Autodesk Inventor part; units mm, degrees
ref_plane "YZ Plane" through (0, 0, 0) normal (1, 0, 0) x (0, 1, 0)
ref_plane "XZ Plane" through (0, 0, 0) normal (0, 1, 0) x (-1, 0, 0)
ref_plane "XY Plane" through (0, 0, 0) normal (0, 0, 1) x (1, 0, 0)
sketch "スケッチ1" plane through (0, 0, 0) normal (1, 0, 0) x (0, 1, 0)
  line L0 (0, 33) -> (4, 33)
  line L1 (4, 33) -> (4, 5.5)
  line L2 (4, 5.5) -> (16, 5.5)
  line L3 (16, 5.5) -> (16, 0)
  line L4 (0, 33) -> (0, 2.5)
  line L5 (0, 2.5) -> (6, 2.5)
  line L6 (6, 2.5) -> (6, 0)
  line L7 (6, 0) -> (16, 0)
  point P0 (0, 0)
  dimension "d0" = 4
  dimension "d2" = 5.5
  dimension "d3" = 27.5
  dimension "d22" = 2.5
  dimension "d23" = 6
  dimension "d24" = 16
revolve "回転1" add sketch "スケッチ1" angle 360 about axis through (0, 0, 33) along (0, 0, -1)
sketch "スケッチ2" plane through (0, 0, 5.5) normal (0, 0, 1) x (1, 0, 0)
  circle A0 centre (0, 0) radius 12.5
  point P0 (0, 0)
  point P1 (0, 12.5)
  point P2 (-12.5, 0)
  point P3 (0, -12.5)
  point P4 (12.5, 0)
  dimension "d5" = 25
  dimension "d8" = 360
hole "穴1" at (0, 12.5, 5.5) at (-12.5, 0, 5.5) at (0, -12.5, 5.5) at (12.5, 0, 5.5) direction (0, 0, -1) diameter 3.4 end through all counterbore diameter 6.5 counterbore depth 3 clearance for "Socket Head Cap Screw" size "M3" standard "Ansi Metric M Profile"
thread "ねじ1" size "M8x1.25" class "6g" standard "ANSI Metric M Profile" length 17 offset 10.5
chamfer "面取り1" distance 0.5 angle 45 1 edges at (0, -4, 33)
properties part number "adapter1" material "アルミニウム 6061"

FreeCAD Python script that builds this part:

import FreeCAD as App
import Part
import Sketcher

V = App.Vector
Q = App.Units.Quantity


def edges_at(feature, points):
    """Names of the edges that pass closest to the given points."""
    edges = feature.Shape.Edges
    near = lambda p: min(range(len(edges)), key=lambda i: edges[i].distToShape(Part.Vertex(*p))[0])
    return sorted({f"Edge{near(p) + 1}" for p in points})


def add_polygon(sketch, points):
    """Adds a closed chain of lines whose ends are joined by coincident constraints."""
    first, n = sketch.GeometryCount, len(points)
    for a, b in zip(points, points[1:] + points[:1]):
        sketch.addGeometry(Part.LineSegment(App.Vector(*a, 0), App.Vector(*b, 0)), False)
    for i in range(n):
        sketch.addConstraint(Sketcher.Constraint("Coincident", first + i, 2, first + (i + 1) % n, 1))

doc = App.newDocument("Part")
body = doc.addObject("PartDesign::Body", "Body")

sketch1 = body.newObject("Sketcher::SketchObject", "Sketch")
sketch1.AttachmentSupport = (doc.getObject("YZ_Plane"), [""])
sketch1.MapMode = "FlatFace"
add_polygon(sketch1, [(4, 33), (0, 33), (0, 2.5), (6, 2.5), (6, 0), (16, 0), (16, 5.5), (4, 5.5)])
sketch1.addConstraint([
    Sketcher.Constraint("Horizontal", 0),
    Sketcher.Constraint("Vertical", 1),
    Sketcher.Constraint("Horizontal", 2),
    Sketcher.Constraint("Vertical", 3),
    Sketcher.Constraint("Horizontal", 4),
    Sketcher.Constraint("Vertical", 5),
    Sketcher.Constraint("Horizontal", 6),
    Sketcher.Constraint("Vertical", 7),
    Sketcher.Constraint("PointOnObject", 0, 2, -2),
    Sketcher.Constraint("PointOnObject", 3, 2, -1),
    Sketcher.Constraint("DistanceX", 0, 2, 0, 1, Q("4 mm")),
    Sketcher.Constraint("DistanceX", 2, 1, 2, 2, Q("6 mm")),
    Sketcher.Constraint("DistanceY", 3, 2, 3, 1, Q("2.5 mm")),
    Sketcher.Constraint("DistanceY", 5, 1, 5, 2, Q("5.5 mm")),
    Sketcher.Constraint("DistanceY", 7, 1, 7, 2, Q("27.5 mm")),
    Sketcher.Constraint("DistanceX", -1, 1, 4, 2, Q("16 mm")),
])
revolution = body.newObject("PartDesign::Revolution", "Revolution")
revolution.Profile = sketch1
revolution.ReferenceAxis = (sketch1, ["V_Axis"])
revolution.Angle = 360

sketch2 = body.newObject("Sketcher::SketchObject", "Sketch001")
sketch2.AttachmentSupport = (doc.getObject("XY_Plane"), [""])
sketch2.MapMode = "FlatFace"
sketch2.AttachmentOffset = App.Placement(V(0, 0, 5.5), App.Rotation())
sketch2.addGeometry([
    Part.Circle(V(0, 12.5, 0), V(0, 0, 1), 1.7),
    Part.Circle(V(-12.5, 0, 0), V(0, 0, 1), 1.7),
    Part.Circle(V(0, -12.5, 0), V(0, 0, 1), 1.7),
    Part.Circle(V(12.5, 0, 0), V(0, 0, 1), 1.7),
], False)
sketch2.addConstraint([
    Sketcher.Constraint("Equal", 0, 1),
    Sketcher.Constraint("Equal", 1, 2),
    Sketcher.Constraint("Equal", 2, 3),
    Sketcher.Constraint("Symmetric", 0, 3, 2, 3, -1, 1),
    Sketcher.Constraint("Symmetric", 1, 3, 3, 3, -1, 1),
    Sketcher.Constraint("PointOnObject", 0, 3, -2),
    Sketcher.Constraint("PointOnObject", 1, 3, -1),
    Sketcher.Constraint("Diameter", 0, Q("3.4 mm")),
    Sketcher.Constraint("DistanceY", 2, 3, 0, 3, Q("25 mm")),
    Sketcher.Constraint("DistanceX", 1, 3, 3, 3, Q("25 mm")),
])
doc.recompute()
hole = body.newObject("PartDesign::Hole", "Hole")
hole.Profile = sketch2
hole.ThreadType = "None"
hole.Diameter = 3.4
hole.DepthType = "ThroughAll"
hole.HoleCutType = "Counterbore"
hole.HoleCutDiameter = 6.5
hole.HoleCutDepth = 3
doc.recompute()

chamfer = body.newObject("PartDesign::Chamfer", "Chamfer")
chamfer.Base = (hole, edges_at(hole, [(0, -4, 33)]))
chamfer.Size = 0.5

doc.recompute()
